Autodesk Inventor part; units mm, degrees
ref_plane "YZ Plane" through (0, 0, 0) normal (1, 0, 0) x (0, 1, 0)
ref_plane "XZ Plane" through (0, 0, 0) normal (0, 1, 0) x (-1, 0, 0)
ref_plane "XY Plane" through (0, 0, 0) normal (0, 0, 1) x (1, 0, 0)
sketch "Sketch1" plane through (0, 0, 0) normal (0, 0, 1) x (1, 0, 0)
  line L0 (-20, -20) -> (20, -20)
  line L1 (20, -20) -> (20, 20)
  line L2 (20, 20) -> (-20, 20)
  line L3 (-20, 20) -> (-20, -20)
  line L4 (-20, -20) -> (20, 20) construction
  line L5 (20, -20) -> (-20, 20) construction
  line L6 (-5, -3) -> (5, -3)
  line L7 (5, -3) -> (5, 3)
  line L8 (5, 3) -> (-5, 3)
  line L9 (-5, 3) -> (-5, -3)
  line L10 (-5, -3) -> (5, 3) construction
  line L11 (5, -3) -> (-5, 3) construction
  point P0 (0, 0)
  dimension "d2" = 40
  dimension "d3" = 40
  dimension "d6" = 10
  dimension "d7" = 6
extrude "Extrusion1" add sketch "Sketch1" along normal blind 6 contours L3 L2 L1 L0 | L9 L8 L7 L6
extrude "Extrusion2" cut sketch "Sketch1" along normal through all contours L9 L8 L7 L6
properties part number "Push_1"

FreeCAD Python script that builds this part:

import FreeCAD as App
import Part
import Sketcher
from FreeCAD import Vector

doc = App.newDocument("Part")
body = doc.addObject("PartDesign::Body", "Body")

# Sketch on XY plane
sketch1 = doc.addObject("Sketcher::SketchObject", "Sketch")
body.addObject(sketch1)
sketch1.AttachmentSupport = (doc.XY_Plane, [""])
sketch1.MapMode = "FlatFace"
sketch1.addGeometry([
    Part.LineSegment(Vector(-20, 20, 0), Vector(-20, -20, 0)),
    Part.LineSegment(Vector(-20, -20, 0), Vector(20, -20, 0)),
    Part.LineSegment(Vector(20, -20, 0), Vector(20, 20, 0)),
    Part.LineSegment(Vector(20, 20, 0), Vector(-20, 20, 0)),
], False)
sketch1.addConstraint([
    Sketcher.Constraint("Coincident", 0, 2, 1, 1),
    Sketcher.Constraint("Coincident", 1, 2, 2, 1),
    Sketcher.Constraint("Coincident", 2, 2, 3, 1),
    Sketcher.Constraint("Coincident", 3, 2, 0, 1),
    Sketcher.Constraint("Vertical", 0),
    Sketcher.Constraint("Horizontal", 1),
    Sketcher.Constraint("Vertical", 2),
    Sketcher.Constraint("Horizontal", 3),
    Sketcher.Constraint("Symmetric", 0, 2, 2, 2, -1, 1),
    Sketcher.Constraint("Equal", 3, 0),
    Sketcher.Constraint("DistanceX", 1, 1, 1, 2, 40.0),
])
pad1 = doc.addObject("PartDesign::Pad", "Pad")
body.addObject(pad1)
pad1.Profile = sketch1
pad1.Length = 6

# Sketch on XY plane
sketch2 = doc.addObject("Sketcher::SketchObject", "Sketch001")
body.addObject(sketch2)
sketch2.AttachmentSupport = (doc.XY_Plane, [""])
sketch2.MapMode = "FlatFace"
sketch2.addGeometry([
    Part.LineSegment(Vector(-5, 3, 0), Vector(-5, -3, 0)),
    Part.LineSegment(Vector(-5, -3, 0), Vector(5, -3, 0)),
    Part.LineSegment(Vector(5, -3, 0), Vector(5, 3, 0)),
    Part.LineSegment(Vector(5, 3, 0), Vector(-5, 3, 0)),
], False)
sketch2.addConstraint([
    Sketcher.Constraint("Coincident", 0, 2, 1, 1),
    Sketcher.Constraint("Coincident", 1, 2, 2, 1),
    Sketcher.Constraint("Coincident", 2, 2, 3, 1),
    Sketcher.Constraint("Coincident", 3, 2, 0, 1),
    Sketcher.Constraint("Vertical", 0),
    Sketcher.Constraint("Horizontal", 1),
    Sketcher.Constraint("Vertical", 2),
    Sketcher.Constraint("Horizontal", 3),
    Sketcher.Constraint("Symmetric", 0, 2, 2, 2, -1, 1),
    Sketcher.Constraint("DistanceX", 1, 1, 1, 2, 10.0),
    Sketcher.Constraint("DistanceY", 0, 2, 0, 1, 6.0),
])
pocket1 = doc.addObject("PartDesign::Pocket", "Pocket")
body.addObject(pocket1)
pocket1.Profile = sketch2
pocket1.Type = "ThroughAll"
pocket1.Reversed = True

doc.recompute()
